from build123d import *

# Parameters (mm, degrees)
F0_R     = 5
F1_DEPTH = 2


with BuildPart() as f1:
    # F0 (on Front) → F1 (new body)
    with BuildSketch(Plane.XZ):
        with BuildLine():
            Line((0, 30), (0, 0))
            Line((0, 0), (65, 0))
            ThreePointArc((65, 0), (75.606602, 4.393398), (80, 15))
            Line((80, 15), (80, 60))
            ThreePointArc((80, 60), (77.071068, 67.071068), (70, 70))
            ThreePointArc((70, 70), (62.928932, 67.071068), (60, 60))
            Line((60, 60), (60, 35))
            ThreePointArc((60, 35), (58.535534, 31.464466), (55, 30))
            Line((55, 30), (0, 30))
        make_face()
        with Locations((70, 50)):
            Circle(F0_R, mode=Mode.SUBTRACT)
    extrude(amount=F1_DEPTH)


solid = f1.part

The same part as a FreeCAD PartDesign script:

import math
import FreeCAD as App
import Part
import Sketcher
Q = App.Units.Quantity

doc = App.newDocument("Part")
body = doc.addObject("PartDesign::Body", "Body")

sketch1 = body.newObject("Sketcher::SketchObject", "Sketch")
sketch1.AttachmentSupport = (doc.getObject("XZ_Plane"), [""])
sketch1.MapMode = "FlatFace"
sketch1.addGeometry([
    Part.LineSegment(App.Vector(0, 30, 0), App.Vector(0, 0, 0)),
    Part.LineSegment(App.Vector(0, 0, 0), App.Vector(65, 0, 0)),
    Part.ArcOfCircle(Part.Circle(App.Vector(65, 15, 0), App.Vector(0, 0, 1), 15), math.radians(-90), math.radians(0)),
    Part.LineSegment(App.Vector(80, 15, 0), App.Vector(80, 60, 0)),
    Part.ArcOfCircle(Part.Circle(App.Vector(70, 60, 0), App.Vector(0, 0, 1), 10), math.radians(0), math.radians(90)),
    Part.ArcOfCircle(Part.Circle(App.Vector(70, 60, 0), App.Vector(0, 0, 1), 10), math.radians(90), math.radians(180)),
    Part.LineSegment(App.Vector(60, 60, 0), App.Vector(60, 35, 0)),
    Part.ArcOfCircle(Part.Circle(App.Vector(55, 35, 0), App.Vector(0, 0, 1), 5), math.radians(-90), math.radians(0)),
    Part.LineSegment(App.Vector(55, 30, 0), App.Vector(0, 30, 0)),
    Part.Circle(App.Vector(70, 50, 0), App.Vector(0, 0, 1), 5),
], False)
sketch1.addConstraint([
    Sketcher.Constraint("Coincident", 0, 2, 1, 1),
    Sketcher.Constraint("Tangent", 1, 2, 2, 1),
    Sketcher.Constraint("Tangent", 2, 2, 3, 1),
    Sketcher.Constraint("Tangent", 3, 2, 4, 1),
    Sketcher.Constraint("Tangent", 4, 2, 5, 1),
    Sketcher.Constraint("Tangent", 5, 2, 6, 1),
    Sketcher.Constraint("Tangent", 6, 2, 7, 2),
    Sketcher.Constraint("Tangent", 7, 1, 8, 1),
    Sketcher.Constraint("Coincident", 8, 2, 0, 1),
    Sketcher.Constraint("Vertical", 0),
    Sketcher.Constraint("Horizontal", 1),
    Sketcher.Constraint("Vertical", 3),
    Sketcher.Constraint("Vertical", 6),
    Sketcher.Constraint("Horizontal", 8),
    Sketcher.Constraint("Coincident", 0, 2, -1, 1),
    Sketcher.Constraint("Equal", 4, 5),
    Sketcher.Constraint("Equal", 7, 9),
    Sketcher.Constraint("Vertical", 5, 3, 9, 3),
    Sketcher.Constraint("Vertical", 9, 3, 4, 2),
    Sketcher.Constraint("Diameter", 9, Q("10 mm")),
    Sketcher.Constraint("Radius", 2, Q("14.999999 mm")),
    Sketcher.Constraint("Radius", 4, Q("9.999999 mm")),
    Sketcher.Constraint("DistanceX", 1, 1, 1, 2, Q("65 mm")),
    Sketcher.Constraint("DistanceY", 0, 2, 0, 1, Q("30 mm")),
    Sketcher.Constraint("DistanceY", 3, 1, 3, 2, Q("45 mm")),
    Sketcher.Constraint("DistanceY", -1, 1, 9, 3, Q("50 mm")),
])
pad1 = body.newObject("PartDesign::Pad", "Pad")
pad1.Profile = sketch1
pad1.Length = 2

doc.recompute()
